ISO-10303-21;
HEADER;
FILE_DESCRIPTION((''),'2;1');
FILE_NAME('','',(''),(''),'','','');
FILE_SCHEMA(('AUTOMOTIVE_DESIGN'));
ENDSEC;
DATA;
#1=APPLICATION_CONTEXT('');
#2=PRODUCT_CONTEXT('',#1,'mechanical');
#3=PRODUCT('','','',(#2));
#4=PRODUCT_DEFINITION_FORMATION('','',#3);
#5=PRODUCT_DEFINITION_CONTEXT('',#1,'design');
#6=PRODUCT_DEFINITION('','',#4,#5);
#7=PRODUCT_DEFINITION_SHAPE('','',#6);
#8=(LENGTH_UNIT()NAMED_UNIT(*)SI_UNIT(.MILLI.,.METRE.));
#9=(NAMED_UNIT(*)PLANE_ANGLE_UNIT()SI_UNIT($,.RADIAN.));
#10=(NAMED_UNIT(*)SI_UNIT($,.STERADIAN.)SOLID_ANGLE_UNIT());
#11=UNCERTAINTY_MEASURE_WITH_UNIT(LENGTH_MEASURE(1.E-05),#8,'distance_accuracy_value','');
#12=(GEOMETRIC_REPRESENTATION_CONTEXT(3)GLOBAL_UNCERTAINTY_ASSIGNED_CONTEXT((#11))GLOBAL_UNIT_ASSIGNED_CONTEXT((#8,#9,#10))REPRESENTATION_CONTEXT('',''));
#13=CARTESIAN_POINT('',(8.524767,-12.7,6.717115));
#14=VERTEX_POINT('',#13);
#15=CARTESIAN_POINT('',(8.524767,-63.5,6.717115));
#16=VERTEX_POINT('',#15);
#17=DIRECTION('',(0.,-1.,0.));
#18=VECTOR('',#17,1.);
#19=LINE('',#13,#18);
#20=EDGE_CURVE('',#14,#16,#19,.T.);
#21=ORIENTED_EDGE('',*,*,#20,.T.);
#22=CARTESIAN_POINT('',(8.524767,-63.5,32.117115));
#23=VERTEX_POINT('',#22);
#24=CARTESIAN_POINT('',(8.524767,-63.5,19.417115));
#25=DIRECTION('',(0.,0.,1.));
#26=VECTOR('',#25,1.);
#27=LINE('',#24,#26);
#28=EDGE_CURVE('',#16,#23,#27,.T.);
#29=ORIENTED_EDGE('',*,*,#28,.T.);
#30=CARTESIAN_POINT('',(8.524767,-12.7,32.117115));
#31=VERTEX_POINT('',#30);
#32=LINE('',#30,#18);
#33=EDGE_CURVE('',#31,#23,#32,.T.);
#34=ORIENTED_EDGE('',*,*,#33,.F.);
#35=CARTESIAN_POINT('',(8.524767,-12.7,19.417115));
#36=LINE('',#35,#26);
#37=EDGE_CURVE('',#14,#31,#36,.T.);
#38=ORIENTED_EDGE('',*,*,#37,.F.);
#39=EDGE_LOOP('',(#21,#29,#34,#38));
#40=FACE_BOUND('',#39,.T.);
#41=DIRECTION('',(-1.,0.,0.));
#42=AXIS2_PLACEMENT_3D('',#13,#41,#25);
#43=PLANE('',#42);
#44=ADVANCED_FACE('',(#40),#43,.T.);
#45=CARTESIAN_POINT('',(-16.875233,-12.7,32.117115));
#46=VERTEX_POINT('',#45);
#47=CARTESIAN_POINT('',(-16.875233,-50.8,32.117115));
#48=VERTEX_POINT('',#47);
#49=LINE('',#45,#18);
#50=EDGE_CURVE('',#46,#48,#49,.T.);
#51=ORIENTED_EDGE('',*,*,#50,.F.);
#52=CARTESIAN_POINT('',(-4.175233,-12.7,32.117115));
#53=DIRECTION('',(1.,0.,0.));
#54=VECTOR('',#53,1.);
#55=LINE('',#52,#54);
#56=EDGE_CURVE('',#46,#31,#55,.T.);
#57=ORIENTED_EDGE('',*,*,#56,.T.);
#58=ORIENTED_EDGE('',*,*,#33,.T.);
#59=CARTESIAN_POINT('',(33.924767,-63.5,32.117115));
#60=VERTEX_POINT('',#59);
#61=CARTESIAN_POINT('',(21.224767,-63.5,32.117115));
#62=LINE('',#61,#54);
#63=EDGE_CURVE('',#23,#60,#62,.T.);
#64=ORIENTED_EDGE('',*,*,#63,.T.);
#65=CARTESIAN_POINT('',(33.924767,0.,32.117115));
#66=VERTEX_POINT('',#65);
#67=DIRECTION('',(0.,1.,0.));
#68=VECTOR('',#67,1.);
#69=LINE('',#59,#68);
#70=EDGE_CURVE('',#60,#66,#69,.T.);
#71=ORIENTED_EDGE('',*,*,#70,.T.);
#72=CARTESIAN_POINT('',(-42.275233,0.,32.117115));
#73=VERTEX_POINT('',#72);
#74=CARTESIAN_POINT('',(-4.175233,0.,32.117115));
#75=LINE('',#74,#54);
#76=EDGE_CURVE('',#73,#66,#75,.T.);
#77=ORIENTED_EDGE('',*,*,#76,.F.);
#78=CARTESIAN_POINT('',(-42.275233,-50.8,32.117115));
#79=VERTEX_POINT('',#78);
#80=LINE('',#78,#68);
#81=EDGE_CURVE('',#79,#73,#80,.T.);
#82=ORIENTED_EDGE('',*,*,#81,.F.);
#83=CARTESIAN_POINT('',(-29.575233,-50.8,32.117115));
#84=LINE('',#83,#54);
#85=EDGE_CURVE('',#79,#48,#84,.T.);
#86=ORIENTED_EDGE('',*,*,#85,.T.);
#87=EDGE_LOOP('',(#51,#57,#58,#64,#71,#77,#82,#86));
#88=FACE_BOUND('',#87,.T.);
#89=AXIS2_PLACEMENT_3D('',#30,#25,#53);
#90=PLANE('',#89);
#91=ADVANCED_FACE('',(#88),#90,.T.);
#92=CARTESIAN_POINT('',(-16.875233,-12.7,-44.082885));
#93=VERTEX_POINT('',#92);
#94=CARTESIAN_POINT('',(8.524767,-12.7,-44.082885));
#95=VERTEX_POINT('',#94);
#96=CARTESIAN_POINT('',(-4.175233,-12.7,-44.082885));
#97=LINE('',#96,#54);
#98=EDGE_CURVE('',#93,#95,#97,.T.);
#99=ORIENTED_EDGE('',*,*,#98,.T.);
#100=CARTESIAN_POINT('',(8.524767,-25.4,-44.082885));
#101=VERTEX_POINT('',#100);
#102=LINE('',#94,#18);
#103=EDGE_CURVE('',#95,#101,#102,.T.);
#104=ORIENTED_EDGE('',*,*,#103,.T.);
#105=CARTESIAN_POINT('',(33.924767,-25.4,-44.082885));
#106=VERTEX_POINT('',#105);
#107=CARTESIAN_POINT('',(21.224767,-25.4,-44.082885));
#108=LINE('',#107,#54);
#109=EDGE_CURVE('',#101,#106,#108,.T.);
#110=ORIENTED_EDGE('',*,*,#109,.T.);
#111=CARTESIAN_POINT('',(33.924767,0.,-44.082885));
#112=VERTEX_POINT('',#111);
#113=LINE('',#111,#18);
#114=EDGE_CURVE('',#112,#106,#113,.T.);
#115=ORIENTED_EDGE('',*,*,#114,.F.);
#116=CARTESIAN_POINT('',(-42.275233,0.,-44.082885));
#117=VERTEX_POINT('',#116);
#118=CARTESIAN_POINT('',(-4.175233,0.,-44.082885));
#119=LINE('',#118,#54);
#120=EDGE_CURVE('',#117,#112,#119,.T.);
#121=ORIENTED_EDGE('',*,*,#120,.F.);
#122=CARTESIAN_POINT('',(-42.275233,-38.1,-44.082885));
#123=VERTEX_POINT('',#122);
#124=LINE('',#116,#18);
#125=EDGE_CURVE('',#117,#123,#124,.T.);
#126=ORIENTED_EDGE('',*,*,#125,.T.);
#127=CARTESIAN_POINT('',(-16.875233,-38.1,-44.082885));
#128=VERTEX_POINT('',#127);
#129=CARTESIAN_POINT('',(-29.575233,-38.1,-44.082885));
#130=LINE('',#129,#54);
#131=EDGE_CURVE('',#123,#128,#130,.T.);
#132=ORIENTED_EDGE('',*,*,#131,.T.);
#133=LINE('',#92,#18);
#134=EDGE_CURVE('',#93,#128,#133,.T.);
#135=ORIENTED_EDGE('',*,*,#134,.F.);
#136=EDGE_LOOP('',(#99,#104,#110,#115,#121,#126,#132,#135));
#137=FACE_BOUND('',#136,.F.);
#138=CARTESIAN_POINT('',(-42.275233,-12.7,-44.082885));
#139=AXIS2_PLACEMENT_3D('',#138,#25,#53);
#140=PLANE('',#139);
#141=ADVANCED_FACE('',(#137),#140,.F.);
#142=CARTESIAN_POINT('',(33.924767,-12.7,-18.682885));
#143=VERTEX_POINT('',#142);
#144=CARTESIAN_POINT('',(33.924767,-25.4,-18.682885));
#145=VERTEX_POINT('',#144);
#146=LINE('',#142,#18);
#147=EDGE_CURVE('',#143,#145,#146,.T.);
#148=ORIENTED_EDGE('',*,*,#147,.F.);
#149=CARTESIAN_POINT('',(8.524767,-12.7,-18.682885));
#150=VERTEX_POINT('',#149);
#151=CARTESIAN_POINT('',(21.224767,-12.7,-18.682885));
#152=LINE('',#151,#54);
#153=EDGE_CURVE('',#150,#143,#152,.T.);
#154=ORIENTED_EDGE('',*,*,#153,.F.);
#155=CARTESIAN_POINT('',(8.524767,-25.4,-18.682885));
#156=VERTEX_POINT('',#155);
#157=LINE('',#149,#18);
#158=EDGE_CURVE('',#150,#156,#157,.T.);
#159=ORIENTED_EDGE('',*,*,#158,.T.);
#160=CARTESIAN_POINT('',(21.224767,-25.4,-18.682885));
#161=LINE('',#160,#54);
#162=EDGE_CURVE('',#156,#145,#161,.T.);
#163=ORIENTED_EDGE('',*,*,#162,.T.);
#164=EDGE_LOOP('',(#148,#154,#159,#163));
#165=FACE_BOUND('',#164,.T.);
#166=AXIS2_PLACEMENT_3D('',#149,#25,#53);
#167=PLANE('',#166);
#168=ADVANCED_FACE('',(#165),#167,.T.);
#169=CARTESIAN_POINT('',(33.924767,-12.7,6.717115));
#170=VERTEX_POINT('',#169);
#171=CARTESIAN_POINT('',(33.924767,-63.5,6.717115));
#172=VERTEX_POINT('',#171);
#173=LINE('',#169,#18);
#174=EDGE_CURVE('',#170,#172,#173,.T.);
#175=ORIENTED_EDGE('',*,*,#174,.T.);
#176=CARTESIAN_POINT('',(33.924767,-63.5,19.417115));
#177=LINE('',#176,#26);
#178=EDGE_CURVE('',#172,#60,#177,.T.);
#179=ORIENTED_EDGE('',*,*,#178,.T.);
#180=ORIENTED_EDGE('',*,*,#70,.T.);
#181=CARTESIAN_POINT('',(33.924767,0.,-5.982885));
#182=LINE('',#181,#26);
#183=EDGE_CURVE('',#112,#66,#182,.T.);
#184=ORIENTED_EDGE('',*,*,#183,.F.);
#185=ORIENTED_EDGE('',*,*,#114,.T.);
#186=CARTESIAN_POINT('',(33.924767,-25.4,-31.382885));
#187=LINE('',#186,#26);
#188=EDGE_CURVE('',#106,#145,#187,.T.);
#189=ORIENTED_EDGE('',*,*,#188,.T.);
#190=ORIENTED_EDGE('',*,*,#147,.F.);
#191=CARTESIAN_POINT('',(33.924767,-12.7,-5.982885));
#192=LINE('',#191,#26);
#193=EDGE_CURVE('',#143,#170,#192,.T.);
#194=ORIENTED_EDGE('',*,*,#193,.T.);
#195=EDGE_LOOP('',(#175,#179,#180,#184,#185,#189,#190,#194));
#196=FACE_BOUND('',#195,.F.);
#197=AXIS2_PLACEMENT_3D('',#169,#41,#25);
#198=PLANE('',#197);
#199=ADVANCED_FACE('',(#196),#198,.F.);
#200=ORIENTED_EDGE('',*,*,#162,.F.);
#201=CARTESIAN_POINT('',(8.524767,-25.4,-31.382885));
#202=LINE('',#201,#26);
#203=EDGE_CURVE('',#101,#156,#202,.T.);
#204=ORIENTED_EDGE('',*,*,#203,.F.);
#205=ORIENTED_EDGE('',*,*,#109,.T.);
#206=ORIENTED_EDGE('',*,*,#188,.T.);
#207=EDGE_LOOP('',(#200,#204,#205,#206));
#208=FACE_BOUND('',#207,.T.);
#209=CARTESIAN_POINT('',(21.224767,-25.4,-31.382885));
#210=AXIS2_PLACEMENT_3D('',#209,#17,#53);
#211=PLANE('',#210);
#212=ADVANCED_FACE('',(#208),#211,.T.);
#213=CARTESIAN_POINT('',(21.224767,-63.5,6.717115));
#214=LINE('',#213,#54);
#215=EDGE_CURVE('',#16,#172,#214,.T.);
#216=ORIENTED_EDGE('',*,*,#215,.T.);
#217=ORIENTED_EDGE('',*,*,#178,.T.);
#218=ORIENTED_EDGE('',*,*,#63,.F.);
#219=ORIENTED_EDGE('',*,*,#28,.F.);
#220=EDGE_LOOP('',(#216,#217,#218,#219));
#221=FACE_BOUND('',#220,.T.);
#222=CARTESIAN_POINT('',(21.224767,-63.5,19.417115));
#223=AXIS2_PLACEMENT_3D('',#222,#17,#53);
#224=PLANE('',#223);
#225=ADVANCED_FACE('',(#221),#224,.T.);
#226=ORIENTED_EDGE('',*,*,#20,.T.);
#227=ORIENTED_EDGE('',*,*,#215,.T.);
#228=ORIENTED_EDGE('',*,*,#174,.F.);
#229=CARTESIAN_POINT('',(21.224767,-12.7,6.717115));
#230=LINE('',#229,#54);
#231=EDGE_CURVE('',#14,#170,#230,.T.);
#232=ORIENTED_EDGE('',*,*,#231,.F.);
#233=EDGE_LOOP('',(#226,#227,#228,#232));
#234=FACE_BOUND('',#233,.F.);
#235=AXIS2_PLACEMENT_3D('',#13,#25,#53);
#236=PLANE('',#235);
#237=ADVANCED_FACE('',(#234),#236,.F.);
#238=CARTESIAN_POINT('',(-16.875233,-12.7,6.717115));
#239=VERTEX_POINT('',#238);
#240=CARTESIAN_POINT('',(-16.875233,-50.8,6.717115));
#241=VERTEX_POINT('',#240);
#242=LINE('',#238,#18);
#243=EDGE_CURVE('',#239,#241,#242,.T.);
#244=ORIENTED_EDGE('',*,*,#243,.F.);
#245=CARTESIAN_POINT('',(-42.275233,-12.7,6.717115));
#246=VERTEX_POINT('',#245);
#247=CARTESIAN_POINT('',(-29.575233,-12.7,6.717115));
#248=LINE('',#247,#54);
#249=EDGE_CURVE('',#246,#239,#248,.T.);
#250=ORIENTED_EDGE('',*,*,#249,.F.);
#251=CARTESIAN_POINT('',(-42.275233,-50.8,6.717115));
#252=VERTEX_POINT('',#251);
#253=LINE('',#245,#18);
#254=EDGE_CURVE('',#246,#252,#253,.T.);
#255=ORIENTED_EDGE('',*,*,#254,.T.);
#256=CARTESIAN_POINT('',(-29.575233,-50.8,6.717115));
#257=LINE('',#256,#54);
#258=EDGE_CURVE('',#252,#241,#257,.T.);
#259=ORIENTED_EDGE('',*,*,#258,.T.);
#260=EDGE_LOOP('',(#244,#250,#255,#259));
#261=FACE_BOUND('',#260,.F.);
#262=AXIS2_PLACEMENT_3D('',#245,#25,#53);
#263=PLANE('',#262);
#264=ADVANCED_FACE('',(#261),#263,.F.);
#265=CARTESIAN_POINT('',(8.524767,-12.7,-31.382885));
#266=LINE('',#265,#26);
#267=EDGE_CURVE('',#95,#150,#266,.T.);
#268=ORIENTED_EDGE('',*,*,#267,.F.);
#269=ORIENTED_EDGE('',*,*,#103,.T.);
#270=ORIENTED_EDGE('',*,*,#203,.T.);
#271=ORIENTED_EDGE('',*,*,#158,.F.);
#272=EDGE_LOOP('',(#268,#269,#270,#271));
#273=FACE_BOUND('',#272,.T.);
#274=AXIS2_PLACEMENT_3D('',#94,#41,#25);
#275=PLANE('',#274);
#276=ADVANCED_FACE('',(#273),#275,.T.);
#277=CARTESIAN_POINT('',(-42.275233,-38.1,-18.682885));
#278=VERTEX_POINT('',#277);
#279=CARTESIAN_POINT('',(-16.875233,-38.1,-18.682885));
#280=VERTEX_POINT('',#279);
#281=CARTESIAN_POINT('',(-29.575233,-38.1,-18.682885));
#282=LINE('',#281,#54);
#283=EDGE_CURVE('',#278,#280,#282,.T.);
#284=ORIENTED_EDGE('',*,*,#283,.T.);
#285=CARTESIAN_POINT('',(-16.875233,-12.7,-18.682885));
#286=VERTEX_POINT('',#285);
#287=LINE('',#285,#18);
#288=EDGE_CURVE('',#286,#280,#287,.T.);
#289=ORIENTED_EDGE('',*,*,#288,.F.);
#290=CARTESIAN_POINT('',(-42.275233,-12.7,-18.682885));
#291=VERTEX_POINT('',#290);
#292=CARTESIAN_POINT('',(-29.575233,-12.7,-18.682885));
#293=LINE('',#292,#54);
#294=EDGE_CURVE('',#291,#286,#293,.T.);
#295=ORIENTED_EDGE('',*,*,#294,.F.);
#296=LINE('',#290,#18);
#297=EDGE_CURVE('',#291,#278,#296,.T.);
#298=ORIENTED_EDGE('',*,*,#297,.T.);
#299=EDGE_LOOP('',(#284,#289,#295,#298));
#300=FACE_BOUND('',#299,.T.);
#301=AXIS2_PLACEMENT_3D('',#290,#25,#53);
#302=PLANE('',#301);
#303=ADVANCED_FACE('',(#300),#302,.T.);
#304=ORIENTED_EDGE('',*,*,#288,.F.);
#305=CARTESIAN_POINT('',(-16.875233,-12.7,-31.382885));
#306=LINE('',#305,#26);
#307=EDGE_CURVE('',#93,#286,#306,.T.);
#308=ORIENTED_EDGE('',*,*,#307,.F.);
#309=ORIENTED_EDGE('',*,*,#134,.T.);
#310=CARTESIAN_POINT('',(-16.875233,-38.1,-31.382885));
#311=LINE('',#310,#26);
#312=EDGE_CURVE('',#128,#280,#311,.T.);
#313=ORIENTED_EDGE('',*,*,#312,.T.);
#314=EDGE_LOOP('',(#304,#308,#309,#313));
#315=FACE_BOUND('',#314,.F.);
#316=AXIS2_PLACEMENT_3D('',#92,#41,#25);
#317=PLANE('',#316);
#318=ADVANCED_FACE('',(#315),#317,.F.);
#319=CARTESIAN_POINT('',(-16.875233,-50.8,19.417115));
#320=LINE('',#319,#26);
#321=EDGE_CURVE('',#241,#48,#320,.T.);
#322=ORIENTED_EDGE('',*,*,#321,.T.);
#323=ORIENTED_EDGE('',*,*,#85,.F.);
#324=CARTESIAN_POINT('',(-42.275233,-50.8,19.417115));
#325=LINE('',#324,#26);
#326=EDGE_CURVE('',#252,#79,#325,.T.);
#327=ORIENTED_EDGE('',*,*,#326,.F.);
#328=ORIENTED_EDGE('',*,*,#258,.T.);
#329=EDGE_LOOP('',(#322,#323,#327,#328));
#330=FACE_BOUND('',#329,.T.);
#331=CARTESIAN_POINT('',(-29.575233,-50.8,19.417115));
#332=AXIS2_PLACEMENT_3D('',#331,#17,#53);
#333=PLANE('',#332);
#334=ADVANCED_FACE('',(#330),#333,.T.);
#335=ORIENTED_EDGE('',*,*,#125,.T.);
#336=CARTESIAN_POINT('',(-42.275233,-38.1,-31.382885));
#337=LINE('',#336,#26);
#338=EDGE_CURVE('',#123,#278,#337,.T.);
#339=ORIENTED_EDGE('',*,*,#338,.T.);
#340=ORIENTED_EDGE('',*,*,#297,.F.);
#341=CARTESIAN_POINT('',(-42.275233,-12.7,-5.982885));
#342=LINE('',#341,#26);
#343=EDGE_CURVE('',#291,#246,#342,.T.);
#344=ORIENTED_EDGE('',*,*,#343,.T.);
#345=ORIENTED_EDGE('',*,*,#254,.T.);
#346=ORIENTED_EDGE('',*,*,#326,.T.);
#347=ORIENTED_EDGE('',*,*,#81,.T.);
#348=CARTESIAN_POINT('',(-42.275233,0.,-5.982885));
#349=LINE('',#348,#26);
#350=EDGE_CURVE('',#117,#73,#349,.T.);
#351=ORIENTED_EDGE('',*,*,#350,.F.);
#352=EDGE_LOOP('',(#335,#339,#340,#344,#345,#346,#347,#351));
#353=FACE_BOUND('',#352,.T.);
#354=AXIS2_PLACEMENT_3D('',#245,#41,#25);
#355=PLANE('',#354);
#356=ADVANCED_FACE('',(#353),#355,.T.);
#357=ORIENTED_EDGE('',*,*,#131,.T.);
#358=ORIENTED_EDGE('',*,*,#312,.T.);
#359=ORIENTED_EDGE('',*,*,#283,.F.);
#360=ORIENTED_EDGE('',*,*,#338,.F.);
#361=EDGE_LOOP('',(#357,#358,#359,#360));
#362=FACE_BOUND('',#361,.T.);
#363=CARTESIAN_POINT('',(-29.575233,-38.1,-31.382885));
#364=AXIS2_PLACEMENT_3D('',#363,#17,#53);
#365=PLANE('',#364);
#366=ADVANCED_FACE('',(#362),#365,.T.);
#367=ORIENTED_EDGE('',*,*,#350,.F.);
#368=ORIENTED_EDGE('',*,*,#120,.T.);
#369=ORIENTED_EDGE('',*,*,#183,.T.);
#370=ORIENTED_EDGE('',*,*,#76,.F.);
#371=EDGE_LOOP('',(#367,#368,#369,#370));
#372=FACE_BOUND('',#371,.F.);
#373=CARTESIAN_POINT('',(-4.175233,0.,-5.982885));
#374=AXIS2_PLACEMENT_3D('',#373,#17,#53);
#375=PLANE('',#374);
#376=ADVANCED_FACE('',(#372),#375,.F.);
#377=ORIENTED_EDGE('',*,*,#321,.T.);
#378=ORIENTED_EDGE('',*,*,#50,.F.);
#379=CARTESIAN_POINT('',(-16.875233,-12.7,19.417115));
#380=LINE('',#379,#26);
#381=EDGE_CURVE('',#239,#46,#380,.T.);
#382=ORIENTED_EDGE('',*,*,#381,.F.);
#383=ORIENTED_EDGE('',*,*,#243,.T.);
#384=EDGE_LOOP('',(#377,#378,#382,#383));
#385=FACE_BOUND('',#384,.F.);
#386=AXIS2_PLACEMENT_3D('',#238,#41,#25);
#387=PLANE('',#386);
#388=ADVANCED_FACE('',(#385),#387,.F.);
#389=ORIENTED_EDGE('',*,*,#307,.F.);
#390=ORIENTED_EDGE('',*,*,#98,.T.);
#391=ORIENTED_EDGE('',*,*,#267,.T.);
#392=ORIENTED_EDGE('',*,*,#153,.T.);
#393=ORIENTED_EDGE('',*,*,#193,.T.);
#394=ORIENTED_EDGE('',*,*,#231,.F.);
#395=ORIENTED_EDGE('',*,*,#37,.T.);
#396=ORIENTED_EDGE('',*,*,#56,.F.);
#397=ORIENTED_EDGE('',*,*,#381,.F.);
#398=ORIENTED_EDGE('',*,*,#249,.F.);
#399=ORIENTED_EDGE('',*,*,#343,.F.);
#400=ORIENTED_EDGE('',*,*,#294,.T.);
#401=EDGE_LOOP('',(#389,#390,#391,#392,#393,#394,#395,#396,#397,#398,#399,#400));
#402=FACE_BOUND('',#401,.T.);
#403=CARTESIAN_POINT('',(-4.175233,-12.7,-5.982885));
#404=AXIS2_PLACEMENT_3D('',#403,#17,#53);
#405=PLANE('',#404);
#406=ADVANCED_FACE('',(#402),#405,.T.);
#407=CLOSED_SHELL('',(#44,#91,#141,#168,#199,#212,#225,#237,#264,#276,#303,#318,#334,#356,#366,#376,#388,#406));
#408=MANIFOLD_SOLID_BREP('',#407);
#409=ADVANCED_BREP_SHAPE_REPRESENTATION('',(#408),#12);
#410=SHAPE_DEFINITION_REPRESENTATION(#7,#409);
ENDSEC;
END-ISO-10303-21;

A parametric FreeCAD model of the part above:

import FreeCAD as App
import Part
import Sketcher
from FreeCAD import Vector
Q = App.Units.Quantity

doc = App.newDocument("Part")
body = doc.addObject("PartDesign::Body", "Body")

sketch1 = doc.addObject("Sketcher::SketchObject", "Sketch")
body.addObject(sketch1)
sketch1.AttachmentSupport = (doc.XZ_Plane, [""])
sketch1.MapMode = "FlatFace"
sketch1.addGeometry([
    Part.LineSegment(Vector(-42, 32, 0), Vector(-42, -44, 0)),
    Part.LineSegment(Vector(-42, -44, 0), Vector(34, -44, 0)),
    Part.LineSegment(Vector(34, -44, 0), Vector(34, 32, 0)),
    Part.LineSegment(Vector(34, 32, 0), Vector(-42, 32, 0)),
], False)
sketch1.addConstraint([
    Sketcher.Constraint("Coincident", 0, 2, 1, 1),
    Sketcher.Constraint("Coincident", 1, 2, 2, 1),
    Sketcher.Constraint("Coincident", 2, 2, 3, 1),
    Sketcher.Constraint("Coincident", 3, 2, 0, 1),
    Sketcher.Constraint("Vertical", 0),
    Sketcher.Constraint("Horizontal", 1),
    Sketcher.Constraint("Vertical", 2),
    Sketcher.Constraint("Horizontal", 3),
    Sketcher.Constraint("Equal", 3, 0),
    Sketcher.Constraint("DistanceX", 1, 1, 1, 2, Q("3 in")),
    Sketcher.Constraint("DistanceX", 0, 2, -1, 1, Q("42.275233 mm")),
    Sketcher.Constraint("DistanceY", 0, 2, -1, 1, Q("44.082885 mm")),
])
pad1 = doc.addObject("PartDesign::Pad", "Pad")
body.addObject(pad1)
pad1.Profile = sketch1
pad1.Length = Q("0.5 in")

sketch2 = doc.addObject("Sketcher::SketchObject", "Sketch001")
body.addObject(sketch2)
sketch2.AttachmentSupport = (doc.XZ_Plane, [""])
sketch2.MapMode = "FlatFace"
sketch2.AttachmentOffset = App.Placement(Vector(0, 0, 0.5 * 25.4), App.Rotation())
sketch2.addGeometry([
    Part.LineSegment(Vector(9, -19, 0), Vector(9, -44, 0)),
    Part.LineSegment(Vector(9, -44, 0), Vector(34, -44, 0)),
    Part.LineSegment(Vector(34, -44, 0), Vector(34, -19, 0)),
    Part.LineSegment(Vector(34, -19, 0), Vector(9, -19, 0)),
], False)
sketch2.addConstraint([
    Sketcher.Constraint("Coincident", 0, 2, 1, 1),
    Sketcher.Constraint("Coincident", 1, 2, 2, 1),
    Sketcher.Constraint("Coincident", 2, 2, 3, 1),
    Sketcher.Constraint("Coincident", 3, 2, 0, 1),
    Sketcher.Constraint("Vertical", 0),
    Sketcher.Constraint("Horizontal", 1),
    Sketcher.Constraint("Vertical", 2),
    Sketcher.Constraint("Horizontal", 3),
    Sketcher.Constraint("Equal", 3, 0),
    Sketcher.Constraint("DistanceX", 1, 1, 1, 2, Q("1 in")),
    Sketcher.Constraint("DistanceX", -1, 1, 0, 2, Q("8.524767 mm")),
    Sketcher.Constraint("DistanceY", 0, 2, -1, 1, Q("44.082885 mm")),
])
pad2 = doc.addObject("PartDesign::Pad", "Pad001")
body.addObject(pad2)
pad2.Profile = sketch2
pad2.Length = Q("0.5 in")

sketch3 = doc.addObject("Sketcher::SketchObject", "Sketch002")
body.addObject(sketch3)
sketch3.AttachmentSupport = (doc.XZ_Plane, [""])
sketch3.MapMode = "FlatFace"
sketch3.AttachmentOffset = App.Placement(Vector(0, 0, 0.5 * 25.4), App.Rotation())
sketch3.addGeometry([
    Part.LineSegment(Vector(-42, -19, 0), Vector(-42, -44, 0)),
    Part.LineSegment(Vector(-42, -44, 0), Vector(-17, -44, 0)),
    Part.LineSegment(Vector(-17, -44, 0), Vector(-17, -19, 0)),
    Part.LineSegment(Vector(-17, -19, 0), Vector(-42, -19, 0)),
], False)
sketch3.addConstraint([
    Sketcher.Constraint("Coincident", 0, 2, 1, 1),
    Sketcher.Constraint("Coincident", 1, 2, 2, 1),
    Sketcher.Constraint("Coincident", 2, 2, 3, 1),
    Sketcher.Constraint("Coincident", 3, 2, 0, 1),
    Sketcher.Constraint("Vertical", 0),
    Sketcher.Constraint("Horizontal", 1),
    Sketcher.Constraint("Vertical", 2),
    Sketcher.Constraint("Horizontal", 3),
    Sketcher.Constraint("Equal", 3, 0),
    Sketcher.Constraint("DistanceX", 1, 1, 1, 2, Q("1 in")),
    Sketcher.Constraint("DistanceX", 0, 2, -1, 1, Q("42.275233 mm")),
    Sketcher.Constraint("DistanceY", 0, 2, -1, 1, Q("44.082885 mm")),
])
pad3 = doc.addObject("PartDesign::Pad", "Pad002")
body.addObject(pad3)
pad3.Profile = sketch3
pad3.Length = Q("1 in")

sketch4 = doc.addObject("Sketcher::SketchObject", "Sketch003")
body.addObject(sketch4)
sketch4.AttachmentSupport = (doc.XZ_Plane, [""])
sketch4.MapMode = "FlatFace"
sketch4.AttachmentOffset = App.Placement(Vector(0, 0, 0.5 * 25.4), App.Rotation())
sketch4.addGeometry([
    Part.LineSegment(Vector(-42, 32, 0), Vector(-42, 7, 0)),
    Part.LineSegment(Vector(-42, 7, 0), Vector(-17, 7, 0)),
    Part.LineSegment(Vector(-17, 7, 0), Vector(-17, 32, 0)),
    Part.LineSegment(Vector(-17, 32, 0), Vector(-42, 32, 0)),
], False)
sketch4.addConstraint([
    Sketcher.Constraint("Coincident", 0, 2, 1, 1),
    Sketcher.Constraint("Coincident", 1, 2, 2, 1),
    Sketcher.Constraint("Coincident", 2, 2, 3, 1),
    Sketcher.Constraint("Coincident", 3, 2, 0, 1),
    Sketcher.Constraint("Vertical", 0),
    Sketcher.Constraint("Horizontal", 1),
    Sketcher.Constraint("Vertical", 2),
    Sketcher.Constraint("Horizontal", 3),
    Sketcher.Constraint("Equal", 3, 0),
    Sketcher.Constraint("DistanceX", 1, 1, 1, 2, Q("1 in")),
    Sketcher.Constraint("DistanceX", 0, 2, -1, 1, Q("42.275233 mm")),
    Sketcher.Constraint("DistanceY", -1, 1, 0, 2, Q("6.717115 mm")),
])
pad4 = doc.addObject("PartDesign::Pad", "Pad003")
body.addObject(pad4)
pad4.Profile = sketch4
pad4.Length = Q("1.5 in")

sketch5 = doc.addObject("Sketcher::SketchObject", "Sketch004")
body.addObject(sketch5)
sketch5.AttachmentSupport = (doc.XZ_Plane, [""])
sketch5.MapMode = "FlatFace"
sketch5.AttachmentOffset = App.Placement(Vector(0, 0, 0.5 * 25.4), App.Rotation())
sketch5.addGeometry([
    Part.LineSegment(Vector(9, 32, 0), Vector(9, 7, 0)),
    Part.LineSegment(Vector(9, 7, 0), Vector(34, 7, 0)),
    Part.LineSegment(Vector(34, 7, 0), Vector(34, 32, 0)),
    Part.LineSegment(Vector(34, 32, 0), Vector(9, 32, 0)),
], False)
sketch5.addConstraint([
    Sketcher.Constraint("Coincident", 0, 2, 1, 1),
    Sketcher.Constraint("Coincident", 1, 2, 2, 1),
    Sketcher.Constraint("Coincident", 2, 2, 3, 1),
    Sketcher.Constraint("Coincident", 3, 2, 0, 1),
    Sketcher.Constraint("Vertical", 0),
    Sketcher.Constraint("Horizontal", 1),
    Sketcher.Constraint("Vertical", 2),
    Sketcher.Constraint("Horizontal", 3),
    Sketcher.Constraint("Equal", 3, 0),
    Sketcher.Constraint("DistanceX", 1, 1, 1, 2, Q("1 in")),
    Sketcher.Constraint("DistanceX", -1, 1, 0, 2, Q("8.524767 mm")),
    Sketcher.Constraint("DistanceY", -1, 1, 0, 2, Q("6.717115 mm")),
])
pad5 = doc.addObject("PartDesign::Pad", "Pad004")
body.addObject(pad5)
pad5.Profile = sketch5
pad5.Length = Q("2 in")

doc.recompute()
